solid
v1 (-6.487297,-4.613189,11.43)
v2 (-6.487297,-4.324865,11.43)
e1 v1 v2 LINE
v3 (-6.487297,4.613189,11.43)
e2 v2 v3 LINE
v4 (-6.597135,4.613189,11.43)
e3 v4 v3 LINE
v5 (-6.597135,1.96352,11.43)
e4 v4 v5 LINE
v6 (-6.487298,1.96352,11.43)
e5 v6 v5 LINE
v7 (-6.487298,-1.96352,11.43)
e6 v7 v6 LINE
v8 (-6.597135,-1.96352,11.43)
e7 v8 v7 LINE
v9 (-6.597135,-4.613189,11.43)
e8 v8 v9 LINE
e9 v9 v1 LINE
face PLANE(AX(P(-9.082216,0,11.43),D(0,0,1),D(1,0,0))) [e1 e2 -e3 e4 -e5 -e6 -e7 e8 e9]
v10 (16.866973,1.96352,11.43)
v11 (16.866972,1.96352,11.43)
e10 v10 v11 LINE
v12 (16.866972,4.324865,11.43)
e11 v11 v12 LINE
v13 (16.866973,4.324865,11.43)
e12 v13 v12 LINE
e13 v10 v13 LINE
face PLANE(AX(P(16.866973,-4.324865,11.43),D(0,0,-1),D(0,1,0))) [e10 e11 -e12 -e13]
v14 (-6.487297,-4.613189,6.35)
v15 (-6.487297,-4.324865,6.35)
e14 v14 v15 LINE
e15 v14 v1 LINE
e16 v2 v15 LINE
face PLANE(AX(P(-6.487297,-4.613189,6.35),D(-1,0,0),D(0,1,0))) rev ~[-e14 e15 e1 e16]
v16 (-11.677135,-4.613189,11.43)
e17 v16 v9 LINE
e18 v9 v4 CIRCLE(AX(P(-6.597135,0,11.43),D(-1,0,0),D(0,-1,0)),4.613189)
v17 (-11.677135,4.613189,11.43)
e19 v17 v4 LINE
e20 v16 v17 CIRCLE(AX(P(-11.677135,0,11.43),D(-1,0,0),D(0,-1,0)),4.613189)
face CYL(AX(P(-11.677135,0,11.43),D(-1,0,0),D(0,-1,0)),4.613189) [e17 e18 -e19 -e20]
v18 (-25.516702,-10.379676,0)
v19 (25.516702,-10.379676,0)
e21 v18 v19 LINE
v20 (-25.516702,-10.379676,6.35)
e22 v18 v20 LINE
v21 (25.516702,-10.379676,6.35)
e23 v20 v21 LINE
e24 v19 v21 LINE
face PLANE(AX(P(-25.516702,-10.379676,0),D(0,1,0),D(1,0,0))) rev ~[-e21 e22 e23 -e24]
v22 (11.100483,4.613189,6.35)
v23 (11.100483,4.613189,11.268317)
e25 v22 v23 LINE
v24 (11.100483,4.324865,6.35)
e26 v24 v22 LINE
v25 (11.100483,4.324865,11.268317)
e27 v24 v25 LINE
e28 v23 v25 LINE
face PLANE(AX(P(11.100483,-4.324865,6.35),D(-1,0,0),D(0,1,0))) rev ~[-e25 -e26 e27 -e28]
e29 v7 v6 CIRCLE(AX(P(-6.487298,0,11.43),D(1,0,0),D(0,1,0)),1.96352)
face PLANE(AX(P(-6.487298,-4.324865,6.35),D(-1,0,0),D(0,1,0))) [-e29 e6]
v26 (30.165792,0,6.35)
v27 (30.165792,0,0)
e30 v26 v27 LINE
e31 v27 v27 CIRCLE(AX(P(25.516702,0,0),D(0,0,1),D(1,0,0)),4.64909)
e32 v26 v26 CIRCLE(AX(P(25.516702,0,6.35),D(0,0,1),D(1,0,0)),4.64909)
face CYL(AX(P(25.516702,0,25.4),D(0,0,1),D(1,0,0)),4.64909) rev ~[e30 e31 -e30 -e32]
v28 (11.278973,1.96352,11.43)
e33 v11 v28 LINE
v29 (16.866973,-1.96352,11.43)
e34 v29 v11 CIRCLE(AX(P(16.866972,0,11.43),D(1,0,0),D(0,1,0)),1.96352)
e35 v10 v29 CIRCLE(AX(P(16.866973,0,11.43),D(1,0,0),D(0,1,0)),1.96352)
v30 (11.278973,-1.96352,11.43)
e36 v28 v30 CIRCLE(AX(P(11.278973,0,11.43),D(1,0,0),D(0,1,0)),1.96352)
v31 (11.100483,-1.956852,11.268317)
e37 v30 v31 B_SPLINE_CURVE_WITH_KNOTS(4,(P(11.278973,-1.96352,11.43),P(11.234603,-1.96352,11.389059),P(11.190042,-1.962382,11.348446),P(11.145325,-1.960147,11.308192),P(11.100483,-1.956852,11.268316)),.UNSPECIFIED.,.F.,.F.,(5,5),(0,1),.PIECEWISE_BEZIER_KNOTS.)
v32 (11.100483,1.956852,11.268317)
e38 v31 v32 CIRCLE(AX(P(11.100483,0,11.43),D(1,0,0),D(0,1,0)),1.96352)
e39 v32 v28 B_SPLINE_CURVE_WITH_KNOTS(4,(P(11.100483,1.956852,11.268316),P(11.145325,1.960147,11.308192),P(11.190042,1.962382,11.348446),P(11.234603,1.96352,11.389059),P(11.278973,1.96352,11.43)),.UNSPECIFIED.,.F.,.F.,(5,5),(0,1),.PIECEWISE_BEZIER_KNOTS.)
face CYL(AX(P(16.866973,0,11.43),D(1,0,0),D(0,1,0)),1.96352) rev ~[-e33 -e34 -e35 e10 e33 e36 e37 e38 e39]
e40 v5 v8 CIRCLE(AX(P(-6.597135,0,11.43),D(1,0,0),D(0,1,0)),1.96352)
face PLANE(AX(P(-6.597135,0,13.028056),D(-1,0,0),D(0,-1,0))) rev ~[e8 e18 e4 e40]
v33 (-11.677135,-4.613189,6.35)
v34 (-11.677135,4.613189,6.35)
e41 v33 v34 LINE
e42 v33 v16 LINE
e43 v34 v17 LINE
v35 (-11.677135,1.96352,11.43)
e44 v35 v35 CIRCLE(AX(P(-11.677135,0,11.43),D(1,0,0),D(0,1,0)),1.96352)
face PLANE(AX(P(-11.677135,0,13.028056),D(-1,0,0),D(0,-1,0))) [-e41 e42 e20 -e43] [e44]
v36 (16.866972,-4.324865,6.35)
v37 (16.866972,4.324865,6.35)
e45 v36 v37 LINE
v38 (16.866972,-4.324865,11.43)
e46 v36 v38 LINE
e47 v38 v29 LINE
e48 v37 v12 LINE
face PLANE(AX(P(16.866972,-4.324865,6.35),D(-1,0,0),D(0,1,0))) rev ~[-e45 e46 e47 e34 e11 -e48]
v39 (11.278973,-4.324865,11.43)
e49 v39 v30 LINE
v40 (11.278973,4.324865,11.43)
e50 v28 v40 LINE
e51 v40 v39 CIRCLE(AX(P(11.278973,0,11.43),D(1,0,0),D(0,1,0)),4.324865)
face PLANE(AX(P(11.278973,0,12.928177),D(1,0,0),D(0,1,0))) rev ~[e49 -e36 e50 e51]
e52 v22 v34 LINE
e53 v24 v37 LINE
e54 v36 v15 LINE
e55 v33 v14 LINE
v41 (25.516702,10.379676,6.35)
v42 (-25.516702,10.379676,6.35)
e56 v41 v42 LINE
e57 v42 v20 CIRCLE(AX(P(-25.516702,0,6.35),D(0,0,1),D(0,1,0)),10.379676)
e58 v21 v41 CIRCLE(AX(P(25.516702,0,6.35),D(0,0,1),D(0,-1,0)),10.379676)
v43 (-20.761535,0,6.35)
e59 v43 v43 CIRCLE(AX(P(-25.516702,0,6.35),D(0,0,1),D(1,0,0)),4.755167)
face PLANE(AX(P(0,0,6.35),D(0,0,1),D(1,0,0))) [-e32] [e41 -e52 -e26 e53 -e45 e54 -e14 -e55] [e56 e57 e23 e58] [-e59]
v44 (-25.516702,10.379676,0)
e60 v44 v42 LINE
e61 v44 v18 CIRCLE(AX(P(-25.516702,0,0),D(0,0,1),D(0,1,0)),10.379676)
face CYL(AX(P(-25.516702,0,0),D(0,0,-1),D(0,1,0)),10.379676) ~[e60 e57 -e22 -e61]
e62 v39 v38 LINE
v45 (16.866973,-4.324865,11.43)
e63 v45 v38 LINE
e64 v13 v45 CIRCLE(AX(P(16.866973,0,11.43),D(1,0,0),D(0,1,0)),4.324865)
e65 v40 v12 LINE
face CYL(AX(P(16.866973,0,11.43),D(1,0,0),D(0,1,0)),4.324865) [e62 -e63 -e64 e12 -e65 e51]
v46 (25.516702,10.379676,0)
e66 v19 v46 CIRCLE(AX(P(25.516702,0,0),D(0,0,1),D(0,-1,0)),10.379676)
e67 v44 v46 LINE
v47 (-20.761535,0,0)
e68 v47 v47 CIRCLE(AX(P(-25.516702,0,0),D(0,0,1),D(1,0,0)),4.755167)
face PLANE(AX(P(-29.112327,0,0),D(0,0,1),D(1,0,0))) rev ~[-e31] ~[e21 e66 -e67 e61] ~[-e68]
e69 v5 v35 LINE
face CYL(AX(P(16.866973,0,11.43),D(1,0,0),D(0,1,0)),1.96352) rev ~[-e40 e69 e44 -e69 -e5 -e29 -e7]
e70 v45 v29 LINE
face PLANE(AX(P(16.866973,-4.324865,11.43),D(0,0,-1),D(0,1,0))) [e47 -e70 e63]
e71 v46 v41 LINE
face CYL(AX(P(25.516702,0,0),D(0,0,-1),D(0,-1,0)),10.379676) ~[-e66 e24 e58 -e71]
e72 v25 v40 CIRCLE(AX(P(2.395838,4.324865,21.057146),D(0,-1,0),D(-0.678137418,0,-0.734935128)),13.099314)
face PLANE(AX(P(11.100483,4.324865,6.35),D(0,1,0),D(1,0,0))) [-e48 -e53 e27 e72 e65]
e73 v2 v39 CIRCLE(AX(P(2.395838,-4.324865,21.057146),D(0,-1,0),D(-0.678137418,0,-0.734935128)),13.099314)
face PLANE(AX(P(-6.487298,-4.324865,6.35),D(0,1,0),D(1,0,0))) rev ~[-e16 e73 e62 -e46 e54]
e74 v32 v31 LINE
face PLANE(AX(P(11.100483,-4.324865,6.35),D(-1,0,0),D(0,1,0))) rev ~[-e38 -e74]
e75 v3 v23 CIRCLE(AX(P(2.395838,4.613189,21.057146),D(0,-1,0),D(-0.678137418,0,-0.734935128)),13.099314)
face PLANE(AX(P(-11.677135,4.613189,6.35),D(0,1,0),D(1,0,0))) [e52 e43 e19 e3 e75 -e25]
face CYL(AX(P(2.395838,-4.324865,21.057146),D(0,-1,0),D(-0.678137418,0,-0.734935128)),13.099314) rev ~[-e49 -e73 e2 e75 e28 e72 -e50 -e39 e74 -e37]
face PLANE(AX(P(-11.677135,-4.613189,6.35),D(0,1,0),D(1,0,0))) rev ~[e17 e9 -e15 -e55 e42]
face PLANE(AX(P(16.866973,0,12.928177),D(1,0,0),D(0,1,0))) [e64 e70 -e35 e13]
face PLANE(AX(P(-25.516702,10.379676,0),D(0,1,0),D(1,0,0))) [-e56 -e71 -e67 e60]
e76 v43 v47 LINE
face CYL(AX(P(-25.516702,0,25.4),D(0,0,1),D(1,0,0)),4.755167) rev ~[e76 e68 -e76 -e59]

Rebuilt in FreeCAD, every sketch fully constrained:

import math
import FreeCAD as App
import Part
import Sketcher

V = App.Vector
Q = App.Units.Quantity

doc = App.newDocument("Part")
body = doc.addObject("PartDesign::Body", "Body")

# Sketch on XY plane
sketch1 = doc.addObject("Sketcher::SketchObject", "Sketch")
body.addObject(sketch1)
sketch1.AttachmentSupport = (doc.XY_Plane, [""])
sketch1.MapMode = "FlatFace"
sketch1.addGeometry([
    Part.ArcOfCircle(Part.Circle(V(-26, 0, 0), V(0, 0, 1), 10), math.radians(90), math.radians(270)),
    Part.LineSegment(V(-26, -10, 0), V(26, -10, 0)),
    Part.ArcOfCircle(Part.Circle(V(26, 0, 0), V(0, 0, 1), 10), math.radians(-90), math.radians(90)),
    Part.LineSegment(V(26, 10, 0), V(-26, 10, 0)),
], False)
sketch1.addConstraint([
    Sketcher.Constraint("Tangent", 0, 2, 1, 1),
    Sketcher.Constraint("Tangent", 1, 2, 2, 1),
    Sketcher.Constraint("Tangent", 2, 2, 3, 1),
    Sketcher.Constraint("Tangent", 3, 2, 0, 1),
    Sketcher.Constraint("Horizontal", 1),
    Sketcher.Constraint("Horizontal", 3),
    Sketcher.Constraint("Symmetric", 0, 3, 2, 3, -1, 1),
    Sketcher.Constraint("Radius", 0, 10.379676),
    Sketcher.Constraint("DistanceX", 0, 3, -1, 1, 25.516702),
])
pad1 = doc.addObject("PartDesign::Pad", "Pad")
body.addObject(pad1)
pad1.Profile = sketch1
pad1.Length = Q("1 in")

# Sketch on XY plane
sketch2 = doc.addObject("Sketcher::SketchObject", "Sketch001")
body.addObject(sketch2)
sketch2.AttachmentSupport = (doc.XY_Plane, [""])
sketch2.MapMode = "FlatFace"
sketch2.AttachmentOffset = App.Placement(V(0, 0, 1 * 25.4), App.Rotation())
sketch2.addGeometry([
    Part.Circle(V(25.5, 0, 0), V(0, 0, 1), 4.6),
    Part.Circle(V(-25.5, 0, 0), V(0, 0, 1), 4.8),
], False)
sketch2.addConstraint([
    Sketcher.Constraint("Symmetric", 0, 3, 1, 3, -1, 1),
    Sketcher.Constraint("PointOnObject", 0, 3, -1),
    Sketcher.Constraint("Diameter", 0, 9.29818),
    Sketcher.Constraint("Diameter", 1, 9.510334),
    Sketcher.Constraint("DistanceX", -1, 1, 0, 3, 25.516702),
])
pocket1 = doc.addObject("PartDesign::Pocket", "Pocket")
body.addObject(pocket1)
pocket1.Profile = sketch2
pocket1.Length = Q("2 in")

# Sketch on XY plane
sketch3 = doc.addObject("Sketcher::SketchObject", "Sketch002")
body.addObject(sketch3)
sketch3.AttachmentSupport = (doc.XY_Plane, [""])
sketch3.MapMode = "FlatFace"
sketch3.AttachmentOffset = App.Placement(V(0, 0, 1 * 25.4), App.Rotation())
sketch3.addGeometry([
    Part.ArcOfCircle(Part.Circle(V(-25.5, 0, 0), V(0, 0, 1), 10.4), math.radians(90), math.radians(270)),  # 0
    Part.LineSegment(V(-25.5, -10.4, 0), V(25.5, -10.4, 0)),  # 1
    Part.ArcOfCircle(Part.Circle(V(25.5, 0, 0), V(0, 0, 1), 10.4), math.radians(-90), math.radians(90)),  # 2
    Part.LineSegment(V(25.5, 10.4, 0), V(-25.5, 10.4, 0)),  # 3
    Part.Circle(V(-25.5, 0, 0), V(0, 0, 1), 4.8),  # 4
    Part.Circle(V(25.5, 0, 0), V(0, 0, 1), 4.6),  # 5
], False)
sketch3.addConstraint([
    Sketcher.Constraint("Tangent", 0, 2, 1, 1),
    Sketcher.Constraint("Tangent", 1, 2, 2, 1),
    Sketcher.Constraint("Tangent", 2, 2, 3, 1),
    Sketcher.Constraint("Tangent", 3, 2, 0, 1),
    Sketcher.Constraint("Horizontal", 1),
    Sketcher.Constraint("Horizontal", 3),
    Sketcher.Constraint("Coincident", 4, 3, 0, 3),
    Sketcher.Constraint("Coincident", 5, 3, 2, 3),
    Sketcher.Constraint("Symmetric", 0, 3, 2, 3, -1, 1),
    Sketcher.Constraint("Diameter", 5, 9.29818),
    Sketcher.Constraint("Diameter", 4, 9.510334),
    Sketcher.Constraint("Radius", 0, 10.379676),
    Sketcher.Constraint("DistanceX", 0, 3, -1, 1, 25.516702),
])
pocket2 = doc.addObject("PartDesign::Pocket", "Pocket001")
body.addObject(pocket2)
pocket2.Profile = sketch3
pocket2.Length = Q("0.75 in")

# Sketch on XY plane
sketch4 = doc.addObject("Sketcher::SketchObject", "Sketch003")
body.addObject(sketch4)
sketch4.AttachmentSupport = (doc.XY_Plane, [""])
sketch4.MapMode = "FlatFace"
sketch4.AttachmentOffset = App.Placement(V(0, 0, 0.25 * 25.4), App.Rotation())
sketch4.addGeometry([
    Part.LineSegment(V(-12, 5, 0), V(-12, -5, 0)),  # 0
    Part.LineSegment(V(-12, -5, 0), V(-6, -5, 0)),  # 1
    Part.LineSegment(V(-6, -5, 0), V(-6, 5, 0)),  # 2
    Part.LineSegment(V(-6, 5, 0), V(-12, 5, 0)),  # 3
    Part.LineSegment(V(11, 4, 0), V(11, -4, 0)),  # 4
    Part.LineSegment(V(11, -4, 0), V(17, -4, 0)),  # 5
    Part.LineSegment(V(17, -4, 0), V(17, 4, 0)),  # 6
    Part.LineSegment(V(17, 4, 0), V(11, 4, 0)),  # 7
], False)
sketch4.addConstraint([
    Sketcher.Constraint("Coincident", 0, 2, 1, 1),
    Sketcher.Constraint("Coincident", 1, 2, 2, 1),
    Sketcher.Constraint("Coincident", 2, 2, 3, 1),
    Sketcher.Constraint("Coincident", 3, 2, 0, 1),
    Sketcher.Constraint("Coincident", 4, 2, 5, 1),
    Sketcher.Constraint("Coincident", 5, 2, 6, 1),
    Sketcher.Constraint("Coincident", 6, 2, 7, 1),
    Sketcher.Constraint("Coincident", 7, 2, 4, 1),
    Sketcher.Constraint("Vertical", 0),
    Sketcher.Constraint("Horizontal", 1),
    Sketcher.Constraint("Vertical", 2),
    Sketcher.Constraint("Horizontal", 3),
    Sketcher.Constraint("Vertical", 4),
    Sketcher.Constraint("Horizontal", 5),
    Sketcher.Constraint("Vertical", 6),
    Sketcher.Constraint("Horizontal", 7),
    Sketcher.Constraint("DistanceX", 5, 1, 5, 2, 5.766489),
    Sketcher.Constraint("DistanceY", 4, 2, 4, 1, 8.64973),
    Sketcher.Constraint("DistanceX", 1, 1, 1, 2, 5.189838),
    Sketcher.Constraint("DistanceY", 0, 2, 0, 1, 9.226378),
    Sketcher.Constraint("DistanceY", 0, 2, -1, 1, 4.613189),
    Sketcher.Constraint("DistanceX", 1, 2, 4, 2, 17.587781),
    Sketcher.Constraint("DistanceX", 0, 2, -1, 1, 11.677135),
    Sketcher.Constraint("DistanceY", 4, 2, -1, 1, 4.324865),
])
pad2 = doc.addObject("PartDesign::Pad", "Pad001")
body.addObject(pad2)
pad2.Profile = sketch4
pad2.Length = Q("0.2 in")

# Sketch on YZ plane
sketch5 = doc.addObject("Sketcher::SketchObject", "Sketch004")
body.addObject(sketch5)
sketch5.AttachmentSupport = (doc.YZ_Plane, [""])
sketch5.MapMode = "FlatFace"
sketch5.AttachmentOffset = App.Placement(V(0, 0, -11.677135), App.Rotation())
sketch5.addGeometry([
    Part.LineSegment(V(4.6, 11.4, 0), V(-4.6, 11.4, 0)),
    Part.ArcOfCircle(Part.Circle(V(0, 11.4, 0), V(0, 0, 1), 4.6), math.radians(0), math.radians(180)),
], False)
sketch5.addConstraint([
    Sketcher.Constraint("Coincident", 0, 1, 1, 1),
    Sketcher.Constraint("Coincident", 1, 2, 0, 2),
    Sketcher.Constraint("Horizontal", 0),
    Sketcher.Constraint("PointOnObject", 1, 3, -2),
    Sketcher.Constraint("Horizontal", 1, 3, 0, 1),
    Sketcher.Constraint("DistanceY", -1, 1, 1, 3, Q("0.45 in")),
    Sketcher.Constraint("Radius", 1, 4.613189),
])
pad3 = doc.addObject("PartDesign::Pad", "Pad002")
body.addObject(pad3)
pad3.Profile = sketch5
pad3.Length = Q("0.2 in")

# Sketch on YZ plane
sketch6 = doc.addObject("Sketcher::SketchObject", "Sketch005")
body.addObject(sketch6)
sketch6.AttachmentSupport = (doc.YZ_Plane, [""])
sketch6.MapMode = "FlatFace"
sketch6.AttachmentOffset = App.Placement(V(0, 0, 16.866973), App.Rotation())
sketch6.addGeometry([
    Part.LineSegment(V(-4.3, 11.4, 0), V(4.3, 11.4, 0)),
    Part.ArcOfCircle(Part.Circle(V(0, 11.4, 0), V(0, 0, 1), 4.3), math.radians(0), math.radians(180)),
], False)
sketch6.addConstraint([
    Sketcher.Constraint("Coincident", 0, 1, 1, 2),
    Sketcher.Constraint("Coincident", 1, 1, 0, 2),
    Sketcher.Constraint("Horizontal", 0),
    Sketcher.Constraint("PointOnObject", 1, 3, -2),
    Sketcher.Constraint("Horizontal", 1, 3, 0, 1),
    Sketcher.Constraint("DistanceY", -1, 1, 1, 3, Q("0.45 in")),
    Sketcher.Constraint("Radius", 1, 4.324865),
])
pad4 = doc.addObject("PartDesign::Pad", "Pad003")
body.addObject(pad4)
pad4.Profile = sketch6
pad4.Length = Q("0.22 in")
pad4.Reversed = True

# Sketch on YZ plane
sketch7 = doc.addObject("Sketcher::SketchObject", "Sketch006")
body.addObject(sketch7)
sketch7.AttachmentSupport = (doc.YZ_Plane, [""])
sketch7.MapMode = "FlatFace"
sketch7.AttachmentOffset = App.Placement(V(0, 0, 16.866973), App.Rotation())
sketch7.addGeometry(Part.Circle(V(0, 11.4, 0), V(0, 0, 1), 2), False)
sketch7.addConstraint([
    Sketcher.Constraint("PointOnObject", 0, 3, -2),
    Sketcher.Constraint("DistanceY", -1, 1, 0, 3, Q("0.45 in")),
    Sketcher.Constraint("Diameter", 0, 3.92704),
])
pocket3 = doc.addObject("PartDesign::Pocket", "Pocket002")
body.addObject(pocket3)
pocket3.Profile = sketch7
pocket3.Length = Q("2 in")

# Sketch on XY plane
sketch8 = doc.addObject("Sketcher::SketchObject", "Sketch007")
body.addObject(sketch8)
sketch8.AttachmentSupport = (doc.XY_Plane, [""])
sketch8.MapMode = "FlatFace"
sketch8.AttachmentOffset = App.Placement(V(0, 0, 0.25 * 25.4), App.Rotation())
sketch8.addGeometry([
    Part.LineSegment(V(-6, 5, 0), V(-6, -4, 0)),
    Part.LineSegment(V(-6, -4, 0), V(11, -4, 0)),
    Part.LineSegment(V(11, -4, 0), V(11, 5, 0)),
    Part.LineSegment(V(11, 5, 0), V(-6, 5, 0)),
], False)
sketch8.addConstraint([
    Sketcher.Constraint("Coincident", 0, 2, 1, 1),
    Sketcher.Constraint("Coincident", 1, 2, 2, 1),
    Sketcher.Constraint("Coincident", 2, 2, 3, 1),
    Sketcher.Constraint("Coincident", 3, 2, 0, 1),
    Sketcher.Constraint("Vertical", 0),
    Sketcher.Constraint("Horizontal", 1),
    Sketcher.Constraint("Vertical", 2),
    Sketcher.Constraint("Horizontal", 3),
    Sketcher.Constraint("DistanceX", 1, 1, 1, 2, 17.587781),
    Sketcher.Constraint("DistanceY", 0, 2, 0, 1, 8.938054),
    Sketcher.Constraint("DistanceY", -1, 1, 2, 2, 4.613189),
    Sketcher.Constraint("DistanceX", 0, 2, -1, 1, 6.487298),
])
pad5 = doc.addObject("PartDesign::Pad", "Pad004")
body.addObject(pad5)
pad5.Profile = sketch8
pad5.Length = Q("0.2 in")

# Sketch on XZ plane
sketch9 = doc.addObject("Sketcher::SketchObject", "Sketch008")
body.addObject(sketch9)
sketch9.AttachmentSupport = (doc.XZ_Plane, [""])
sketch9.MapMode = "FlatFace"
sketch9.AttachmentOffset = App.Placement(V(0, 0, 4.324865), App.Rotation())
sketch9.addGeometry([
    Part.LineSegment(V(11, 11, 0), V(-6, 11, 0)),
    Part.ArcOfCircle(Part.Circle(V(2, 21, 0), V(0, 0, 1), 13), math.radians(-133), math.radians(-47)),
], False)
sketch9.addConstraint([
    Sketcher.Constraint("Coincident", 0, 1, 1, 2),
    Sketcher.Constraint("Coincident", 1, 1, 0, 2),
    Sketcher.Constraint("Horizontal", 0),
    Sketcher.Constraint("DistanceY", -1, 1, 0, 1, Q("0.45 in")),
    Sketcher.Constraint("Radius", 1, 13.099314),
    Sketcher.Constraint("DistanceX", 0, 2, 0, 1, 17.76627),
    Sketcher.Constraint("DistanceX", -1, 1, 1, 3, 2.395838),
])
pocket4 = doc.addObject("PartDesign::Pocket", "Pocket003")
body.addObject(pocket4)
pocket4.Profile = sketch9
pocket4.Length = Q("2 in")

doc.recompute()
